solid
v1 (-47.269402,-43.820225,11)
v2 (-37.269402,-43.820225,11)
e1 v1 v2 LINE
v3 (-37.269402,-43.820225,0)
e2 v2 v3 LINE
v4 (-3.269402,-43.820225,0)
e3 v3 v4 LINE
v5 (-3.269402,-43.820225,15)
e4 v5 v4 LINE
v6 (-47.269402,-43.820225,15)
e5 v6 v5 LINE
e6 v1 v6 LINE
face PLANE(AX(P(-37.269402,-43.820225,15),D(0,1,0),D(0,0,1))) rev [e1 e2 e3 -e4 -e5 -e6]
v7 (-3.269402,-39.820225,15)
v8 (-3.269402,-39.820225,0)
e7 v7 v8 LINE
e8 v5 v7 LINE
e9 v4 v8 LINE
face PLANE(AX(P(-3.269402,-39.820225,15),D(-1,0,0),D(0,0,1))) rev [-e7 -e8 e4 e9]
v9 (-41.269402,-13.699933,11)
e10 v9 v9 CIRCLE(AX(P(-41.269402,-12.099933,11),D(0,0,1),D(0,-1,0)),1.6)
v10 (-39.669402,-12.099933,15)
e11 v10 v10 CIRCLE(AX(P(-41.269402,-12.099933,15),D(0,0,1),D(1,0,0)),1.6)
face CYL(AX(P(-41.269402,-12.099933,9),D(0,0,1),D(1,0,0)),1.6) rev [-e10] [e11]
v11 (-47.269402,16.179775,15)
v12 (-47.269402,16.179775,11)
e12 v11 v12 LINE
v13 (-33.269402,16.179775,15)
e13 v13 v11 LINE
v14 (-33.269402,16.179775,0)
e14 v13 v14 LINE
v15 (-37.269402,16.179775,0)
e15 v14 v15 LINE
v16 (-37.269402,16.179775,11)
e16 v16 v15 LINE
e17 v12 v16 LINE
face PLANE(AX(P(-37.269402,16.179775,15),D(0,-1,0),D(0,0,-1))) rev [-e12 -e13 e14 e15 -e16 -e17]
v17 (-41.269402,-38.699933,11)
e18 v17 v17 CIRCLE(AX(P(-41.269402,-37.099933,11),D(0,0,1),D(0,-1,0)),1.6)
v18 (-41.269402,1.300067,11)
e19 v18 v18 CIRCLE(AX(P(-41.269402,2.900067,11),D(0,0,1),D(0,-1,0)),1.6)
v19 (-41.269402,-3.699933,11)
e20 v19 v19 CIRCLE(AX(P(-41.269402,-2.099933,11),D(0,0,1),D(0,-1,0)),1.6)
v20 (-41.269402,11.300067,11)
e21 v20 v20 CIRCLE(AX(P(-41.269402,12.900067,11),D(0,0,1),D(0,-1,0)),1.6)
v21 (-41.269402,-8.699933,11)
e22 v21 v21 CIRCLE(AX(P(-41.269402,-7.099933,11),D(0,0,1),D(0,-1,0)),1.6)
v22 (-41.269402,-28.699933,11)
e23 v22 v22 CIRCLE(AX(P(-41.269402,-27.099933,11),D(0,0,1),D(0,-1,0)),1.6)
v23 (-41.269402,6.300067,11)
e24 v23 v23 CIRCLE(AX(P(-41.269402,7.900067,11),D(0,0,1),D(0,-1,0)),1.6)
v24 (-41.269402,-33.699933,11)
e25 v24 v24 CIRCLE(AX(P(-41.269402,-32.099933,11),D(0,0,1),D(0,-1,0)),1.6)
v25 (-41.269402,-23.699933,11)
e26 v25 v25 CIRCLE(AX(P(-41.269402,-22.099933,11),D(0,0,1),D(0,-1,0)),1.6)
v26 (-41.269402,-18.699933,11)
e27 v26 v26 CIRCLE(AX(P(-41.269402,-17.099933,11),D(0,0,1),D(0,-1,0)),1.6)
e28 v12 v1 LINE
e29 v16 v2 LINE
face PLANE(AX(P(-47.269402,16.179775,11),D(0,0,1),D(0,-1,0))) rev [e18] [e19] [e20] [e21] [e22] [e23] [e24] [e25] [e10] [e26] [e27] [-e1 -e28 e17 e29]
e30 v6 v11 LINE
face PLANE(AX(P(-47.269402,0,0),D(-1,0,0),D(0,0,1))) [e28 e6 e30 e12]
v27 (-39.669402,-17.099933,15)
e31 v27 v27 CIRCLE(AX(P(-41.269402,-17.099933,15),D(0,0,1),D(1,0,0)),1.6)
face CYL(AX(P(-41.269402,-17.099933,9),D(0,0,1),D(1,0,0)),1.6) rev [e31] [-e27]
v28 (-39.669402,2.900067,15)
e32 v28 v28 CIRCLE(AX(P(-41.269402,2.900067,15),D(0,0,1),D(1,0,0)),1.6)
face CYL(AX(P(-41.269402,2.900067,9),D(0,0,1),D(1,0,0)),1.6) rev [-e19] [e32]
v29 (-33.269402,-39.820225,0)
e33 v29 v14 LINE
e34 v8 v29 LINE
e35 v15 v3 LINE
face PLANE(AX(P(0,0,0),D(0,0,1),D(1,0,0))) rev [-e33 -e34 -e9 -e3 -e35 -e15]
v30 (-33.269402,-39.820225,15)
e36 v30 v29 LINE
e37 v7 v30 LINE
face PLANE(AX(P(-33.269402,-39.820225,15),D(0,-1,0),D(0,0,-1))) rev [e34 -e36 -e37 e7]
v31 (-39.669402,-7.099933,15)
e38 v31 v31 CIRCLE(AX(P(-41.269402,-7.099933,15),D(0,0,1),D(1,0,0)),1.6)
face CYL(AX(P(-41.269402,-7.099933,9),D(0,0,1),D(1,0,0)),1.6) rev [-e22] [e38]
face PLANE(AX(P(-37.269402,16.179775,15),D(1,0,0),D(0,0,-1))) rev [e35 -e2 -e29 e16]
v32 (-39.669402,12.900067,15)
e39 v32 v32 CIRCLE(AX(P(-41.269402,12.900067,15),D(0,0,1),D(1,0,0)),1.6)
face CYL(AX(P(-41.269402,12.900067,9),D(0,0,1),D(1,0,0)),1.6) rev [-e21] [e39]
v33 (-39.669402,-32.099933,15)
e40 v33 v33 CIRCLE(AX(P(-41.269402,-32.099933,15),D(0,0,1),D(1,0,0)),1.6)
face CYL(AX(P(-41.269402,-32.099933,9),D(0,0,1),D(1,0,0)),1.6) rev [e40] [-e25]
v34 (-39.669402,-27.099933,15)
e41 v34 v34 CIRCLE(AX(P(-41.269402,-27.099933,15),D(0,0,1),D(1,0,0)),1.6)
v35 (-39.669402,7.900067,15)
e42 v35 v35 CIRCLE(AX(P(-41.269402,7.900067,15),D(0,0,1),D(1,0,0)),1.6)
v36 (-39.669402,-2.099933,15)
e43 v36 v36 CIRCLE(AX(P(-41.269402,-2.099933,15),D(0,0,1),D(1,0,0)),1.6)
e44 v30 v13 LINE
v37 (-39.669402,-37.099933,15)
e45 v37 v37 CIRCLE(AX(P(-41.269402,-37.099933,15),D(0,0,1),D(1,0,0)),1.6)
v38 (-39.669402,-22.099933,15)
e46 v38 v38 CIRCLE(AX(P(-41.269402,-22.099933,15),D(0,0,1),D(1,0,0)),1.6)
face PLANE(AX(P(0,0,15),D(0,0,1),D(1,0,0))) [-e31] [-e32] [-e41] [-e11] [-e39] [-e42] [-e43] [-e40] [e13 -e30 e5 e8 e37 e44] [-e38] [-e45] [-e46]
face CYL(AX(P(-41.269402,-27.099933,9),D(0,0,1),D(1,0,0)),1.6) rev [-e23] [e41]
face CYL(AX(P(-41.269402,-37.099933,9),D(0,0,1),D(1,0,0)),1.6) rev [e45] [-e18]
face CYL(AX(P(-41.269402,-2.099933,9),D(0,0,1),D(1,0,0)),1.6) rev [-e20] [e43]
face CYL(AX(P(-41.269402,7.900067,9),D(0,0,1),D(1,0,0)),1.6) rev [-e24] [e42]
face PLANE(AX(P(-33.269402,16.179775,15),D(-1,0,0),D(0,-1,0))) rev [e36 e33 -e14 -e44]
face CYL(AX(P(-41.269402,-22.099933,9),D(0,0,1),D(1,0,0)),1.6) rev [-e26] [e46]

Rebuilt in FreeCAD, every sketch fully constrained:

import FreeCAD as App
import Part
import Sketcher

V = App.Vector
Q = App.Units.Quantity


def add_polygon(sketch, points):
    """Adds a closed chain of lines whose ends are joined by coincident constraints."""
    first, n = sketch.GeometryCount, len(points)
    for a, b in zip(points, points[1:] + points[:1]):
        sketch.addGeometry(Part.LineSegment(App.Vector(*a, 0), App.Vector(*b, 0)), False)
    for i in range(n):
        sketch.addConstraint(Sketcher.Constraint("Coincident", first + i, 2, first + (i + 1) % n, 1))

doc = App.newDocument("Part")
params = doc.addObject("Spreadsheet::Sheet", "Params")
for row, (alias, value) in enumerate([
    ("sketch1_width", "4 mm"),
    ("sketch1_width2", "34 mm"),
    ("sketch1_height", "60 mm"),
    ("pad1_length", "15 mm"),
    ("sketch2_width", "60 mm"),
    ("sketch2_height", "4 mm"),
    ("pad2_length", "10 mm"),
    ("sketch3_diameter", "3.2 mm"),
    ("pocket1_length", "6 mm"),
], start=1):
    params.set(f"A{row}", alias)
    params.set(f"B{row}", "=" + value)
    params.setAlias(f"B{row}", alias)

body = doc.addObject("PartDesign::Body", "Body")

# Sketch on XY plane
sketch1 = doc.addObject("Sketcher::SketchObject", "Sketch")
body.addObject(sketch1)
sketch1.AttachmentSupport = (doc.XY_Plane, [""])
sketch1.MapMode = "FlatFace"
add_polygon(sketch1, [(-33.3, 16.2), (-37.3, 16.2), (-37.3, -43.8), (-3.3, -43.8), (-3.3, -39.8), (-33.3, -39.8)])  # lines 0-5
sketch1.addConstraint(Sketcher.Constraint("Horizontal", 0))
sketch1.addConstraint(Sketcher.Constraint("Vertical", 1))
sketch1.addConstraint(Sketcher.Constraint("Horizontal", 2))
sketch1.addConstraint(Sketcher.Constraint("Vertical", 3))
sketch1.addConstraint(Sketcher.Constraint("Horizontal", 4))
sketch1.addConstraint(Sketcher.Constraint("Vertical", 5))
sketch1.addConstraint(Sketcher.Constraint("Equal", 0, 3))
sketch1.addConstraint(Sketcher.Constraint("DistanceX", 0, 2, 0, 1, Q("4 mm")))
sketch1.addConstraint(Sketcher.Constraint("DistanceX", 2, 1, 2, 2, Q("34 mm")))
sketch1.addConstraint(Sketcher.Constraint("DistanceY", 1, 2, 1, 1, Q("60 mm")))
sketch1.addConstraint(Sketcher.Constraint("DistanceX", 0, 2, -1, 1, Q("37.269402 mm")))
sketch1.addConstraint(Sketcher.Constraint("DistanceY", -1, 1, 0, 2, Q("16.179775 mm")))
sketch1.setExpression("Constraints[13]", "Params.sketch1_width")
sketch1.setExpression("Constraints[14]", "Params.sketch1_width2")
sketch1.setExpression("Constraints[15]", "Params.sketch1_height")
pad1 = doc.addObject("PartDesign::Pad", "Pad")
body.addObject(pad1)
pad1.Profile = sketch1
pad1.setExpression("Length", "Params.pad1_length")

# Sketch on YZ plane
sketch2 = doc.addObject("Sketcher::SketchObject", "Sketch001")
body.addObject(sketch2)
sketch2.AttachmentSupport = (doc.YZ_Plane, [""])
sketch2.MapMode = "FlatFace"
sketch2.AttachmentOffset = App.Placement(V(0, 0, -37.269402), App.Rotation())
add_polygon(sketch2, [(16.2, 11), (-43.8, 11), (-43.8, 15), (16.2, 15)])  # lines 0-3
sketch2.addConstraint(Sketcher.Constraint("Horizontal", 0))
sketch2.addConstraint(Sketcher.Constraint("Vertical", 1))
sketch2.addConstraint(Sketcher.Constraint("Horizontal", 2))
sketch2.addConstraint(Sketcher.Constraint("Vertical", 3))
sketch2.addConstraint(Sketcher.Constraint("DistanceX", 0, 2, 0, 1, Q("60 mm")))
sketch2.addConstraint(Sketcher.Constraint("DistanceY", 1, 1, 1, 2, Q("4 mm")))
sketch2.addConstraint(Sketcher.Constraint("DistanceY", -1, 1, 0, 2, Q("11 mm")))
sketch2.addConstraint(Sketcher.Constraint("DistanceX", 0, 2, -1, 1, Q("43.820225 mm")))
sketch2.setExpression("Constraints[8]", "Params.sketch2_width")
sketch2.setExpression("Constraints[9]", "Params.sketch2_height")
pad2 = doc.addObject("PartDesign::Pad", "Pad001")
body.addObject(pad2)
pad2.Profile = sketch2
pad2.setExpression("Length", "Params.pad2_length")
pad2.Reversed = True

# Sketch on XY plane
sketch3 = doc.addObject("Sketcher::SketchObject", "Sketch002")
body.addObject(sketch3)
sketch3.AttachmentSupport = (doc.XY_Plane, [""])
sketch3.MapMode = "FlatFace"
sketch3.AttachmentOffset = App.Placement(V(0, 0, 15), App.Rotation())
sketch3.addGeometry(Part.Circle(V(-41.3, 7.9, 0), V(0, 0, 1), 1.6), False)
sketch3.addGeometry(Part.Circle(V(-41.3, 2.9, 0), V(0, 0, 1), 1.6), False)
sketch3.addGeometry(Part.Circle(V(-41.3, -2.1, 0), V(0, 0, 1), 1.6), False)
sketch3.addGeometry(Part.Circle(V(-41.3, -7.1, 0), V(0, 0, 1), 1.6), False)
sketch3.addGeometry(Part.Circle(V(-41.3, -12.1, 0), V(0, 0, 1), 1.6), False)
sketch3.addGeometry(Part.Circle(V(-41.3, -17.1, 0), V(0, 0, 1), 1.6), False)
sketch3.addGeometry(Part.Circle(V(-41.3, -22.1, 0), V(0, 0, 1), 1.6), False)
sketch3.addGeometry(Part.Circle(V(-41.3, -27.1, 0), V(0, 0, 1), 1.6), False)
sketch3.addGeometry(Part.Circle(V(-41.3, -32.1, 0), V(0, 0, 1), 1.6), False)
sketch3.addGeometry(Part.Circle(V(-41.3, -37.1, 0), V(0, 0, 1), 1.6), False)
sketch3.addGeometry(Part.Circle(V(-41.3, 12.9, 0), V(0, 0, 1), 1.6), False)
sketch3.addConstraint(Sketcher.Constraint("Equal", 0, 1))
sketch3.addConstraint(Sketcher.Constraint("Equal", 1, 2))
sketch3.addConstraint(Sketcher.Constraint("Equal", 2, 3))
sketch3.addConstraint(Sketcher.Constraint("Equal", 3, 4))
sketch3.addConstraint(Sketcher.Constraint("Equal", 4, 5))
sketch3.addConstraint(Sketcher.Constraint("Equal", 5, 6))
sketch3.addConstraint(Sketcher.Constraint("Equal", 6, 7))
sketch3.addConstraint(Sketcher.Constraint("Equal", 7, 8))
sketch3.addConstraint(Sketcher.Constraint("Equal", 8, 9))
sketch3.addConstraint(Sketcher.Constraint("Equal", 9, 10))
sketch3.addConstraint(Sketcher.Constraint("Vertical", 0, 3, 1, 3))
sketch3.addConstraint(Sketcher.Constraint("Vertical", 1, 3, 2, 3))
sketch3.addConstraint(Sketcher.Constraint("Vertical", 2, 3, 3, 3))
sketch3.addConstraint(Sketcher.Constraint("Vertical", 3, 3, 4, 3))
sketch3.addConstraint(Sketcher.Constraint("Vertical", 4, 3, 5, 3))
sketch3.addConstraint(Sketcher.Constraint("Vertical", 5, 3, 6, 3))
sketch3.addConstraint(Sketcher.Constraint("Vertical", 6, 3, 7, 3))
sketch3.addConstraint(Sketcher.Constraint("Vertical", 7, 3, 8, 3))
sketch3.addConstraint(Sketcher.Constraint("Vertical", 8, 3, 9, 3))
sketch3.addConstraint(Sketcher.Constraint("Vertical", 9, 3, 10, 3))
sketch3.addConstraint(Sketcher.Constraint("Diameter", 0, Q("3.2 mm")))
sketch3.addConstraint(Sketcher.Constraint("DistanceY", 1, 3, 0, 3, Q("5 mm")))
sketch3.addConstraint(Sketcher.Constraint("DistanceY", 2, 3, 1, 3, Q("5 mm")))
sketch3.addConstraint(Sketcher.Constraint("DistanceY", 3, 3, 2, 3, Q("5 mm")))
sketch3.addConstraint(Sketcher.Constraint("DistanceY", 4, 3, 3, 3, Q("5 mm")))
sketch3.addConstraint(Sketcher.Constraint("DistanceY", 5, 3, 4, 3, Q("5 mm")))
sketch3.addConstraint(Sketcher.Constraint("DistanceY", 6, 3, 5, 3, Q("5 mm")))
sketch3.addConstraint(Sketcher.Constraint("DistanceY", 7, 3, 6, 3, Q("5 mm")))
sketch3.addConstraint(Sketcher.Constraint("DistanceY", 8, 3, 7, 3, Q("5 mm")))
sketch3.addConstraint(Sketcher.Constraint("DistanceY", 9, 3, 8, 3, Q("5 mm")))
sketch3.addConstraint(Sketcher.Constraint("DistanceY", 0, 3, 10, 3, Q("5 mm")))
sketch3.addConstraint(Sketcher.Constraint("DistanceX", 0, 3, -1, 1, Q("41.269402 mm")))
sketch3.addConstraint(Sketcher.Constraint("DistanceY", -1, 1, 0, 3, Q("7.900067 mm")))
sketch3.setExpression("Constraints[20]", "Params.sketch3_diameter")
pocket1 = doc.addObject("PartDesign::Pocket", "Pocket")
body.addObject(pocket1)
pocket1.Profile = sketch3
pocket1.setExpression("Length", "Params.pocket1_length")

doc.recompute()
